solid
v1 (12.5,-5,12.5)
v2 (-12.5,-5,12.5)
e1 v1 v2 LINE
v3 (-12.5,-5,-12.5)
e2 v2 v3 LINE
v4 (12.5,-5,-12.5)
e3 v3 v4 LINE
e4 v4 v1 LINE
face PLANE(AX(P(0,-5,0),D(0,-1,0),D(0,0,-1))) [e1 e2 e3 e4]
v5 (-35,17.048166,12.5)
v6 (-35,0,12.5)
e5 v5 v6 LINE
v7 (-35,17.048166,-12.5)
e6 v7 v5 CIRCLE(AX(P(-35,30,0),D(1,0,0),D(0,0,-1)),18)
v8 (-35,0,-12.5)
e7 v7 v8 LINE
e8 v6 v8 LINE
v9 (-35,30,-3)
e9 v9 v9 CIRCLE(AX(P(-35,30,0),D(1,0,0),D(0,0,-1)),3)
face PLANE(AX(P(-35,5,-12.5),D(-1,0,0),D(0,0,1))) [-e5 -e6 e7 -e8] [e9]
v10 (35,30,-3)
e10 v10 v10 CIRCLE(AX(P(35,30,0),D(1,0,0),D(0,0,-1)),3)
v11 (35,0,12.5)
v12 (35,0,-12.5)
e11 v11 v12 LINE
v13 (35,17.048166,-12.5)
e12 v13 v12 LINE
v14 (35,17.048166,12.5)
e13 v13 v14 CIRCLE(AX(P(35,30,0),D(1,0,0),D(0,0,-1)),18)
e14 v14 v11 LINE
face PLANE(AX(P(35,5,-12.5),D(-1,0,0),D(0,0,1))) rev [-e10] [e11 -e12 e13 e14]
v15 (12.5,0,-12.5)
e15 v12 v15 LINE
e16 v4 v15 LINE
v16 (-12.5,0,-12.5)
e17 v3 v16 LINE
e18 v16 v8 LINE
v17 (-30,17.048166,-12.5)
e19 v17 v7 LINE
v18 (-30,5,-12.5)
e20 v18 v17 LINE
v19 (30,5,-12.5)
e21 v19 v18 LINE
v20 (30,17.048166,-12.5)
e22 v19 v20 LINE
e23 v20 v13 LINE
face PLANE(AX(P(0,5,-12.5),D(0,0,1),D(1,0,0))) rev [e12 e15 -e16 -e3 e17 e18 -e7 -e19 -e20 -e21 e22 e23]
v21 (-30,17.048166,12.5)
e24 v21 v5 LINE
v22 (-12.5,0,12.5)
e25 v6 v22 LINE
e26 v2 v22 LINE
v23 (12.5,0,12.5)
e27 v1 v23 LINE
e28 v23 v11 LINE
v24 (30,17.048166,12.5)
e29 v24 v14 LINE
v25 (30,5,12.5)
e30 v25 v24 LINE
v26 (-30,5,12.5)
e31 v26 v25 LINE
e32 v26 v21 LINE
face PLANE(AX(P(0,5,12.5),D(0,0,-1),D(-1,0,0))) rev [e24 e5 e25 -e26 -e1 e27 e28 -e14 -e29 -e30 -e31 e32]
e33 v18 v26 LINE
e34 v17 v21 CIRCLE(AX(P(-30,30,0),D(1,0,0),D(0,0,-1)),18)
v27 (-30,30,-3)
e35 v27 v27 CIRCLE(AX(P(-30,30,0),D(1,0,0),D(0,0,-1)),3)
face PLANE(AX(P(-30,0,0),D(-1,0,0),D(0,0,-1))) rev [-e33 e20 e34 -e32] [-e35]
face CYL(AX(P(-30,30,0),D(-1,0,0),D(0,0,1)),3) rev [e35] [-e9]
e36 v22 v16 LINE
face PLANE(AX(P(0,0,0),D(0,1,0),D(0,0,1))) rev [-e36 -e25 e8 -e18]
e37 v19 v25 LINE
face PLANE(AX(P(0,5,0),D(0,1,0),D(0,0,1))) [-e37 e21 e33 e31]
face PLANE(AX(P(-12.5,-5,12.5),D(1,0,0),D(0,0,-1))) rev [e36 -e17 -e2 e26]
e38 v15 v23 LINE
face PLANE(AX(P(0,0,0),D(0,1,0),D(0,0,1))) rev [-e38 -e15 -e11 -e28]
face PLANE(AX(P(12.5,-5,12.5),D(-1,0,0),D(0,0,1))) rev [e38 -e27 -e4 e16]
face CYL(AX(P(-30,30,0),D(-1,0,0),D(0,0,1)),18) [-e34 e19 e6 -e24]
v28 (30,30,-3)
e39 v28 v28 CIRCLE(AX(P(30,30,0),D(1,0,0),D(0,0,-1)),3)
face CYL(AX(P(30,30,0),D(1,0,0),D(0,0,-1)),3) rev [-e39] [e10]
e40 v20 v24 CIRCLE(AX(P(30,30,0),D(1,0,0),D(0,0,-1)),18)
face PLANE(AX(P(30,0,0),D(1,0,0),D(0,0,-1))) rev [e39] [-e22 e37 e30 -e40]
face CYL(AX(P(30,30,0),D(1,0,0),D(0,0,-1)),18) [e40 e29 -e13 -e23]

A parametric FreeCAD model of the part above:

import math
import FreeCAD as App
import Part
import Sketcher

V = App.Vector
Q = App.Units.Quantity

doc = App.newDocument("Part")
params = doc.addObject("Spreadsheet::Sheet", "Params")
for row, (alias, value) in enumerate([
    ("sketch1_width", "35 mm"),
    ("sketch1_height", "25 mm"),
    ("pad1_length", "5 mm"),
    ("sketch2_diameter", "6 mm"),
    ("sketch2_radius", "18 mm"),
    ("sketch2_height", "25 mm"),
    ("pad2_length", "5 mm"),
    ("sketch3_width", "25 mm"),
    ("pad3_length", "5 mm"),
], start=1):
    params.set(f"A{row}", alias)
    params.set(f"B{row}", "=" + value)
    params.setAlias(f"B{row}", alias)

body = doc.addObject("PartDesign::Body", "Body")

# Sketch on XZ plane
sketch1 = doc.addObject("Sketcher::SketchObject", "Sketch")
body.addObject(sketch1)
sketch1.AttachmentSupport = (doc.XZ_Plane, [""])
sketch1.MapMode = "FlatFace"
sketch1.addGeometry(Part.LineSegment(V(0, -12.5, 0), V(0, 12.5, 0)), False)
sketch1.addGeometry(Part.LineSegment(V(0, 12.5, 0), V(35, 12.5, 0)), False)
sketch1.addGeometry(Part.LineSegment(V(35, 12.5, 0), V(35, -12.5, 0)), False)
sketch1.addGeometry(Part.LineSegment(V(35, -12.5, 0), V(0, -12.5, 0)), False)
sketch1.addConstraint(Sketcher.Constraint("Coincident", 0, 2, 1, 1))
sketch1.addConstraint(Sketcher.Constraint("Coincident", 1, 2, 2, 1))
sketch1.addConstraint(Sketcher.Constraint("Coincident", 2, 2, 3, 1))
sketch1.addConstraint(Sketcher.Constraint("Coincident", 3, 2, 0, 1))
sketch1.addConstraint(Sketcher.Constraint("Vertical", 0))
sketch1.addConstraint(Sketcher.Constraint("Horizontal", 1))
sketch1.addConstraint(Sketcher.Constraint("Vertical", 2))
sketch1.addConstraint(Sketcher.Constraint("Horizontal", 3))
sketch1.addConstraint(Sketcher.Constraint("Symmetric", 0, 2, 3, 2, -1, 1))
sketch1.addConstraint(Sketcher.Constraint("DistanceX", 1, 1, 1, 2, Q("35 mm")))
sketch1.addConstraint(Sketcher.Constraint("DistanceY", 0, 1, 0, 2, Q("25 mm")))
sketch1.setExpression("Constraints[9]", "Params.sketch1_width")
sketch1.setExpression("Constraints[10]", "Params.sketch1_height")
pad1 = doc.addObject("PartDesign::Pad", "Pad")
body.addObject(pad1)
pad1.Profile = sketch1
pad1.setExpression("Length", "Params.pad1_length")
pad1.Reversed = True

# Sketch on YZ plane
sketch2 = doc.addObject("Sketcher::SketchObject", "Sketch001")
body.addObject(sketch2)
sketch2.AttachmentSupport = (doc.YZ_Plane, [""])
sketch2.MapMode = "FlatFace"
sketch2.AttachmentOffset = App.Placement(V(0, 0, 35), App.Rotation())
sketch2.addGeometry(Part.LineSegment(V(17.048166, 12.5, 0), V(5, 12.5, 0)), False)
sketch2.addGeometry(Part.LineSegment(V(5, 12.5, 0), V(5, -12.5, 0)), False)
sketch2.addGeometry(Part.LineSegment(V(5, -12.5, 0), V(17.048166, -12.5, 0)), False)
sketch2.addGeometry(Part.ArcOfCircle(Part.Circle(V(30, 0, 0), V(0, 0, 1), 18), math.radians(-136.017037), math.radians(136.017037)), False)
sketch2.addGeometry(Part.Circle(V(30, 0, 0), V(0, 0, 1), 3), False)
sketch2.addConstraint(Sketcher.Constraint("Coincident", 0, 2, 1, 1))
sketch2.addConstraint(Sketcher.Constraint("Coincident", 1, 2, 2, 1))
sketch2.addConstraint(Sketcher.Constraint("Coincident", 2, 2, 3, 1))
sketch2.addConstraint(Sketcher.Constraint("Coincident", 3, 2, 0, 1))
sketch2.addConstraint(Sketcher.Constraint("Horizontal", 0))
sketch2.addConstraint(Sketcher.Constraint("Vertical", 1))
sketch2.addConstraint(Sketcher.Constraint("Horizontal", 2))
sketch2.addConstraint(Sketcher.Constraint("Coincident", 4, 3, 3, 3))
sketch2.addConstraint(Sketcher.Constraint("Symmetric", 2, 2, 3, 2, -1))
sketch2.addConstraint(Sketcher.Constraint("Diameter", 4, Q("6 mm")))
sketch2.addConstraint(Sketcher.Constraint("Radius", 3, Q("18 mm")))
sketch2.addConstraint(Sketcher.Constraint("DistanceY", 1, 2, 1, 1, Q("25 mm")))
sketch2.addConstraint(Sketcher.Constraint("DistanceX", -1, 1, 3, 3, Q("30 mm")))
sketch2.addConstraint(Sketcher.Constraint("DistanceX", -1, 1, 0, 2, Q("5 mm")))
sketch2.setExpression("Constraints[9]", "Params.sketch2_diameter")
sketch2.setExpression("Constraints[10]", "Params.sketch2_radius")
sketch2.setExpression("Constraints[11]", "Params.sketch2_height")
pad2 = doc.addObject("PartDesign::Pad", "Pad001")
body.addObject(pad2)
pad2.Profile = sketch2
pad2.setExpression("Length", "Params.pad2_length")
pad2.Reversed = True
doc.recompute()

mirrored = doc.addObject("PartDesign::Mirrored", "Mirrored")
body.addObject(mirrored)
mirrored.Originals = [pad1, pad2]
mirrored.MirrorPlane = (doc.YZ_Plane, [""])
body.Tip = mirrored

# Sketch on XZ plane
sketch3 = doc.addObject("Sketcher::SketchObject", "Sketch002")
body.addObject(sketch3)
sketch3.AttachmentSupport = (doc.XZ_Plane, [""])
sketch3.MapMode = "FlatFace"
sketch3.addGeometry(Part.LineSegment(V(-12.5, 12.5, 0), V(-12.5, -12.5, 0)), False)
sketch3.addGeometry(Part.LineSegment(V(-12.5, -12.5, 0), V(12.5, -12.5, 0)), False)
sketch3.addGeometry(Part.LineSegment(V(12.5, -12.5, 0), V(12.5, 12.5, 0)), False)
sketch3.addGeometry(Part.LineSegment(V(12.5, 12.5, 0), V(-12.5, 12.5, 0)), False)
sketch3.addConstraint(Sketcher.Constraint("Coincident", 0, 2, 1, 1))
sketch3.addConstraint(Sketcher.Constraint("Coincident", 1, 2, 2, 1))
sketch3.addConstraint(Sketcher.Constraint("Coincident", 2, 2, 3, 1))
sketch3.addConstraint(Sketcher.Constraint("Coincident", 3, 2, 0, 1))
sketch3.addConstraint(Sketcher.Constraint("Vertical", 0))
sketch3.addConstraint(Sketcher.Constraint("Horizontal", 1))
sketch3.addConstraint(Sketcher.Constraint("Vertical", 2))
sketch3.addConstraint(Sketcher.Constraint("Horizontal", 3))
sketch3.addConstraint(Sketcher.Constraint("Symmetric", 0, 2, 2, 2, -1, 1))
sketch3.addConstraint(Sketcher.Constraint("Equal", 3, 0))
sketch3.addConstraint(Sketcher.Constraint("DistanceX", 1, 1, 1, 2, Q("25 mm")))
sketch3.setExpression("Constraints[10]", "Params.sketch3_width")
pad3 = doc.addObject("PartDesign::Pad", "Pad002")
body.addObject(pad3)
pad3.Profile = sketch3
pad3.setExpression("Length", "Params.pad3_length")

doc.recompute()
